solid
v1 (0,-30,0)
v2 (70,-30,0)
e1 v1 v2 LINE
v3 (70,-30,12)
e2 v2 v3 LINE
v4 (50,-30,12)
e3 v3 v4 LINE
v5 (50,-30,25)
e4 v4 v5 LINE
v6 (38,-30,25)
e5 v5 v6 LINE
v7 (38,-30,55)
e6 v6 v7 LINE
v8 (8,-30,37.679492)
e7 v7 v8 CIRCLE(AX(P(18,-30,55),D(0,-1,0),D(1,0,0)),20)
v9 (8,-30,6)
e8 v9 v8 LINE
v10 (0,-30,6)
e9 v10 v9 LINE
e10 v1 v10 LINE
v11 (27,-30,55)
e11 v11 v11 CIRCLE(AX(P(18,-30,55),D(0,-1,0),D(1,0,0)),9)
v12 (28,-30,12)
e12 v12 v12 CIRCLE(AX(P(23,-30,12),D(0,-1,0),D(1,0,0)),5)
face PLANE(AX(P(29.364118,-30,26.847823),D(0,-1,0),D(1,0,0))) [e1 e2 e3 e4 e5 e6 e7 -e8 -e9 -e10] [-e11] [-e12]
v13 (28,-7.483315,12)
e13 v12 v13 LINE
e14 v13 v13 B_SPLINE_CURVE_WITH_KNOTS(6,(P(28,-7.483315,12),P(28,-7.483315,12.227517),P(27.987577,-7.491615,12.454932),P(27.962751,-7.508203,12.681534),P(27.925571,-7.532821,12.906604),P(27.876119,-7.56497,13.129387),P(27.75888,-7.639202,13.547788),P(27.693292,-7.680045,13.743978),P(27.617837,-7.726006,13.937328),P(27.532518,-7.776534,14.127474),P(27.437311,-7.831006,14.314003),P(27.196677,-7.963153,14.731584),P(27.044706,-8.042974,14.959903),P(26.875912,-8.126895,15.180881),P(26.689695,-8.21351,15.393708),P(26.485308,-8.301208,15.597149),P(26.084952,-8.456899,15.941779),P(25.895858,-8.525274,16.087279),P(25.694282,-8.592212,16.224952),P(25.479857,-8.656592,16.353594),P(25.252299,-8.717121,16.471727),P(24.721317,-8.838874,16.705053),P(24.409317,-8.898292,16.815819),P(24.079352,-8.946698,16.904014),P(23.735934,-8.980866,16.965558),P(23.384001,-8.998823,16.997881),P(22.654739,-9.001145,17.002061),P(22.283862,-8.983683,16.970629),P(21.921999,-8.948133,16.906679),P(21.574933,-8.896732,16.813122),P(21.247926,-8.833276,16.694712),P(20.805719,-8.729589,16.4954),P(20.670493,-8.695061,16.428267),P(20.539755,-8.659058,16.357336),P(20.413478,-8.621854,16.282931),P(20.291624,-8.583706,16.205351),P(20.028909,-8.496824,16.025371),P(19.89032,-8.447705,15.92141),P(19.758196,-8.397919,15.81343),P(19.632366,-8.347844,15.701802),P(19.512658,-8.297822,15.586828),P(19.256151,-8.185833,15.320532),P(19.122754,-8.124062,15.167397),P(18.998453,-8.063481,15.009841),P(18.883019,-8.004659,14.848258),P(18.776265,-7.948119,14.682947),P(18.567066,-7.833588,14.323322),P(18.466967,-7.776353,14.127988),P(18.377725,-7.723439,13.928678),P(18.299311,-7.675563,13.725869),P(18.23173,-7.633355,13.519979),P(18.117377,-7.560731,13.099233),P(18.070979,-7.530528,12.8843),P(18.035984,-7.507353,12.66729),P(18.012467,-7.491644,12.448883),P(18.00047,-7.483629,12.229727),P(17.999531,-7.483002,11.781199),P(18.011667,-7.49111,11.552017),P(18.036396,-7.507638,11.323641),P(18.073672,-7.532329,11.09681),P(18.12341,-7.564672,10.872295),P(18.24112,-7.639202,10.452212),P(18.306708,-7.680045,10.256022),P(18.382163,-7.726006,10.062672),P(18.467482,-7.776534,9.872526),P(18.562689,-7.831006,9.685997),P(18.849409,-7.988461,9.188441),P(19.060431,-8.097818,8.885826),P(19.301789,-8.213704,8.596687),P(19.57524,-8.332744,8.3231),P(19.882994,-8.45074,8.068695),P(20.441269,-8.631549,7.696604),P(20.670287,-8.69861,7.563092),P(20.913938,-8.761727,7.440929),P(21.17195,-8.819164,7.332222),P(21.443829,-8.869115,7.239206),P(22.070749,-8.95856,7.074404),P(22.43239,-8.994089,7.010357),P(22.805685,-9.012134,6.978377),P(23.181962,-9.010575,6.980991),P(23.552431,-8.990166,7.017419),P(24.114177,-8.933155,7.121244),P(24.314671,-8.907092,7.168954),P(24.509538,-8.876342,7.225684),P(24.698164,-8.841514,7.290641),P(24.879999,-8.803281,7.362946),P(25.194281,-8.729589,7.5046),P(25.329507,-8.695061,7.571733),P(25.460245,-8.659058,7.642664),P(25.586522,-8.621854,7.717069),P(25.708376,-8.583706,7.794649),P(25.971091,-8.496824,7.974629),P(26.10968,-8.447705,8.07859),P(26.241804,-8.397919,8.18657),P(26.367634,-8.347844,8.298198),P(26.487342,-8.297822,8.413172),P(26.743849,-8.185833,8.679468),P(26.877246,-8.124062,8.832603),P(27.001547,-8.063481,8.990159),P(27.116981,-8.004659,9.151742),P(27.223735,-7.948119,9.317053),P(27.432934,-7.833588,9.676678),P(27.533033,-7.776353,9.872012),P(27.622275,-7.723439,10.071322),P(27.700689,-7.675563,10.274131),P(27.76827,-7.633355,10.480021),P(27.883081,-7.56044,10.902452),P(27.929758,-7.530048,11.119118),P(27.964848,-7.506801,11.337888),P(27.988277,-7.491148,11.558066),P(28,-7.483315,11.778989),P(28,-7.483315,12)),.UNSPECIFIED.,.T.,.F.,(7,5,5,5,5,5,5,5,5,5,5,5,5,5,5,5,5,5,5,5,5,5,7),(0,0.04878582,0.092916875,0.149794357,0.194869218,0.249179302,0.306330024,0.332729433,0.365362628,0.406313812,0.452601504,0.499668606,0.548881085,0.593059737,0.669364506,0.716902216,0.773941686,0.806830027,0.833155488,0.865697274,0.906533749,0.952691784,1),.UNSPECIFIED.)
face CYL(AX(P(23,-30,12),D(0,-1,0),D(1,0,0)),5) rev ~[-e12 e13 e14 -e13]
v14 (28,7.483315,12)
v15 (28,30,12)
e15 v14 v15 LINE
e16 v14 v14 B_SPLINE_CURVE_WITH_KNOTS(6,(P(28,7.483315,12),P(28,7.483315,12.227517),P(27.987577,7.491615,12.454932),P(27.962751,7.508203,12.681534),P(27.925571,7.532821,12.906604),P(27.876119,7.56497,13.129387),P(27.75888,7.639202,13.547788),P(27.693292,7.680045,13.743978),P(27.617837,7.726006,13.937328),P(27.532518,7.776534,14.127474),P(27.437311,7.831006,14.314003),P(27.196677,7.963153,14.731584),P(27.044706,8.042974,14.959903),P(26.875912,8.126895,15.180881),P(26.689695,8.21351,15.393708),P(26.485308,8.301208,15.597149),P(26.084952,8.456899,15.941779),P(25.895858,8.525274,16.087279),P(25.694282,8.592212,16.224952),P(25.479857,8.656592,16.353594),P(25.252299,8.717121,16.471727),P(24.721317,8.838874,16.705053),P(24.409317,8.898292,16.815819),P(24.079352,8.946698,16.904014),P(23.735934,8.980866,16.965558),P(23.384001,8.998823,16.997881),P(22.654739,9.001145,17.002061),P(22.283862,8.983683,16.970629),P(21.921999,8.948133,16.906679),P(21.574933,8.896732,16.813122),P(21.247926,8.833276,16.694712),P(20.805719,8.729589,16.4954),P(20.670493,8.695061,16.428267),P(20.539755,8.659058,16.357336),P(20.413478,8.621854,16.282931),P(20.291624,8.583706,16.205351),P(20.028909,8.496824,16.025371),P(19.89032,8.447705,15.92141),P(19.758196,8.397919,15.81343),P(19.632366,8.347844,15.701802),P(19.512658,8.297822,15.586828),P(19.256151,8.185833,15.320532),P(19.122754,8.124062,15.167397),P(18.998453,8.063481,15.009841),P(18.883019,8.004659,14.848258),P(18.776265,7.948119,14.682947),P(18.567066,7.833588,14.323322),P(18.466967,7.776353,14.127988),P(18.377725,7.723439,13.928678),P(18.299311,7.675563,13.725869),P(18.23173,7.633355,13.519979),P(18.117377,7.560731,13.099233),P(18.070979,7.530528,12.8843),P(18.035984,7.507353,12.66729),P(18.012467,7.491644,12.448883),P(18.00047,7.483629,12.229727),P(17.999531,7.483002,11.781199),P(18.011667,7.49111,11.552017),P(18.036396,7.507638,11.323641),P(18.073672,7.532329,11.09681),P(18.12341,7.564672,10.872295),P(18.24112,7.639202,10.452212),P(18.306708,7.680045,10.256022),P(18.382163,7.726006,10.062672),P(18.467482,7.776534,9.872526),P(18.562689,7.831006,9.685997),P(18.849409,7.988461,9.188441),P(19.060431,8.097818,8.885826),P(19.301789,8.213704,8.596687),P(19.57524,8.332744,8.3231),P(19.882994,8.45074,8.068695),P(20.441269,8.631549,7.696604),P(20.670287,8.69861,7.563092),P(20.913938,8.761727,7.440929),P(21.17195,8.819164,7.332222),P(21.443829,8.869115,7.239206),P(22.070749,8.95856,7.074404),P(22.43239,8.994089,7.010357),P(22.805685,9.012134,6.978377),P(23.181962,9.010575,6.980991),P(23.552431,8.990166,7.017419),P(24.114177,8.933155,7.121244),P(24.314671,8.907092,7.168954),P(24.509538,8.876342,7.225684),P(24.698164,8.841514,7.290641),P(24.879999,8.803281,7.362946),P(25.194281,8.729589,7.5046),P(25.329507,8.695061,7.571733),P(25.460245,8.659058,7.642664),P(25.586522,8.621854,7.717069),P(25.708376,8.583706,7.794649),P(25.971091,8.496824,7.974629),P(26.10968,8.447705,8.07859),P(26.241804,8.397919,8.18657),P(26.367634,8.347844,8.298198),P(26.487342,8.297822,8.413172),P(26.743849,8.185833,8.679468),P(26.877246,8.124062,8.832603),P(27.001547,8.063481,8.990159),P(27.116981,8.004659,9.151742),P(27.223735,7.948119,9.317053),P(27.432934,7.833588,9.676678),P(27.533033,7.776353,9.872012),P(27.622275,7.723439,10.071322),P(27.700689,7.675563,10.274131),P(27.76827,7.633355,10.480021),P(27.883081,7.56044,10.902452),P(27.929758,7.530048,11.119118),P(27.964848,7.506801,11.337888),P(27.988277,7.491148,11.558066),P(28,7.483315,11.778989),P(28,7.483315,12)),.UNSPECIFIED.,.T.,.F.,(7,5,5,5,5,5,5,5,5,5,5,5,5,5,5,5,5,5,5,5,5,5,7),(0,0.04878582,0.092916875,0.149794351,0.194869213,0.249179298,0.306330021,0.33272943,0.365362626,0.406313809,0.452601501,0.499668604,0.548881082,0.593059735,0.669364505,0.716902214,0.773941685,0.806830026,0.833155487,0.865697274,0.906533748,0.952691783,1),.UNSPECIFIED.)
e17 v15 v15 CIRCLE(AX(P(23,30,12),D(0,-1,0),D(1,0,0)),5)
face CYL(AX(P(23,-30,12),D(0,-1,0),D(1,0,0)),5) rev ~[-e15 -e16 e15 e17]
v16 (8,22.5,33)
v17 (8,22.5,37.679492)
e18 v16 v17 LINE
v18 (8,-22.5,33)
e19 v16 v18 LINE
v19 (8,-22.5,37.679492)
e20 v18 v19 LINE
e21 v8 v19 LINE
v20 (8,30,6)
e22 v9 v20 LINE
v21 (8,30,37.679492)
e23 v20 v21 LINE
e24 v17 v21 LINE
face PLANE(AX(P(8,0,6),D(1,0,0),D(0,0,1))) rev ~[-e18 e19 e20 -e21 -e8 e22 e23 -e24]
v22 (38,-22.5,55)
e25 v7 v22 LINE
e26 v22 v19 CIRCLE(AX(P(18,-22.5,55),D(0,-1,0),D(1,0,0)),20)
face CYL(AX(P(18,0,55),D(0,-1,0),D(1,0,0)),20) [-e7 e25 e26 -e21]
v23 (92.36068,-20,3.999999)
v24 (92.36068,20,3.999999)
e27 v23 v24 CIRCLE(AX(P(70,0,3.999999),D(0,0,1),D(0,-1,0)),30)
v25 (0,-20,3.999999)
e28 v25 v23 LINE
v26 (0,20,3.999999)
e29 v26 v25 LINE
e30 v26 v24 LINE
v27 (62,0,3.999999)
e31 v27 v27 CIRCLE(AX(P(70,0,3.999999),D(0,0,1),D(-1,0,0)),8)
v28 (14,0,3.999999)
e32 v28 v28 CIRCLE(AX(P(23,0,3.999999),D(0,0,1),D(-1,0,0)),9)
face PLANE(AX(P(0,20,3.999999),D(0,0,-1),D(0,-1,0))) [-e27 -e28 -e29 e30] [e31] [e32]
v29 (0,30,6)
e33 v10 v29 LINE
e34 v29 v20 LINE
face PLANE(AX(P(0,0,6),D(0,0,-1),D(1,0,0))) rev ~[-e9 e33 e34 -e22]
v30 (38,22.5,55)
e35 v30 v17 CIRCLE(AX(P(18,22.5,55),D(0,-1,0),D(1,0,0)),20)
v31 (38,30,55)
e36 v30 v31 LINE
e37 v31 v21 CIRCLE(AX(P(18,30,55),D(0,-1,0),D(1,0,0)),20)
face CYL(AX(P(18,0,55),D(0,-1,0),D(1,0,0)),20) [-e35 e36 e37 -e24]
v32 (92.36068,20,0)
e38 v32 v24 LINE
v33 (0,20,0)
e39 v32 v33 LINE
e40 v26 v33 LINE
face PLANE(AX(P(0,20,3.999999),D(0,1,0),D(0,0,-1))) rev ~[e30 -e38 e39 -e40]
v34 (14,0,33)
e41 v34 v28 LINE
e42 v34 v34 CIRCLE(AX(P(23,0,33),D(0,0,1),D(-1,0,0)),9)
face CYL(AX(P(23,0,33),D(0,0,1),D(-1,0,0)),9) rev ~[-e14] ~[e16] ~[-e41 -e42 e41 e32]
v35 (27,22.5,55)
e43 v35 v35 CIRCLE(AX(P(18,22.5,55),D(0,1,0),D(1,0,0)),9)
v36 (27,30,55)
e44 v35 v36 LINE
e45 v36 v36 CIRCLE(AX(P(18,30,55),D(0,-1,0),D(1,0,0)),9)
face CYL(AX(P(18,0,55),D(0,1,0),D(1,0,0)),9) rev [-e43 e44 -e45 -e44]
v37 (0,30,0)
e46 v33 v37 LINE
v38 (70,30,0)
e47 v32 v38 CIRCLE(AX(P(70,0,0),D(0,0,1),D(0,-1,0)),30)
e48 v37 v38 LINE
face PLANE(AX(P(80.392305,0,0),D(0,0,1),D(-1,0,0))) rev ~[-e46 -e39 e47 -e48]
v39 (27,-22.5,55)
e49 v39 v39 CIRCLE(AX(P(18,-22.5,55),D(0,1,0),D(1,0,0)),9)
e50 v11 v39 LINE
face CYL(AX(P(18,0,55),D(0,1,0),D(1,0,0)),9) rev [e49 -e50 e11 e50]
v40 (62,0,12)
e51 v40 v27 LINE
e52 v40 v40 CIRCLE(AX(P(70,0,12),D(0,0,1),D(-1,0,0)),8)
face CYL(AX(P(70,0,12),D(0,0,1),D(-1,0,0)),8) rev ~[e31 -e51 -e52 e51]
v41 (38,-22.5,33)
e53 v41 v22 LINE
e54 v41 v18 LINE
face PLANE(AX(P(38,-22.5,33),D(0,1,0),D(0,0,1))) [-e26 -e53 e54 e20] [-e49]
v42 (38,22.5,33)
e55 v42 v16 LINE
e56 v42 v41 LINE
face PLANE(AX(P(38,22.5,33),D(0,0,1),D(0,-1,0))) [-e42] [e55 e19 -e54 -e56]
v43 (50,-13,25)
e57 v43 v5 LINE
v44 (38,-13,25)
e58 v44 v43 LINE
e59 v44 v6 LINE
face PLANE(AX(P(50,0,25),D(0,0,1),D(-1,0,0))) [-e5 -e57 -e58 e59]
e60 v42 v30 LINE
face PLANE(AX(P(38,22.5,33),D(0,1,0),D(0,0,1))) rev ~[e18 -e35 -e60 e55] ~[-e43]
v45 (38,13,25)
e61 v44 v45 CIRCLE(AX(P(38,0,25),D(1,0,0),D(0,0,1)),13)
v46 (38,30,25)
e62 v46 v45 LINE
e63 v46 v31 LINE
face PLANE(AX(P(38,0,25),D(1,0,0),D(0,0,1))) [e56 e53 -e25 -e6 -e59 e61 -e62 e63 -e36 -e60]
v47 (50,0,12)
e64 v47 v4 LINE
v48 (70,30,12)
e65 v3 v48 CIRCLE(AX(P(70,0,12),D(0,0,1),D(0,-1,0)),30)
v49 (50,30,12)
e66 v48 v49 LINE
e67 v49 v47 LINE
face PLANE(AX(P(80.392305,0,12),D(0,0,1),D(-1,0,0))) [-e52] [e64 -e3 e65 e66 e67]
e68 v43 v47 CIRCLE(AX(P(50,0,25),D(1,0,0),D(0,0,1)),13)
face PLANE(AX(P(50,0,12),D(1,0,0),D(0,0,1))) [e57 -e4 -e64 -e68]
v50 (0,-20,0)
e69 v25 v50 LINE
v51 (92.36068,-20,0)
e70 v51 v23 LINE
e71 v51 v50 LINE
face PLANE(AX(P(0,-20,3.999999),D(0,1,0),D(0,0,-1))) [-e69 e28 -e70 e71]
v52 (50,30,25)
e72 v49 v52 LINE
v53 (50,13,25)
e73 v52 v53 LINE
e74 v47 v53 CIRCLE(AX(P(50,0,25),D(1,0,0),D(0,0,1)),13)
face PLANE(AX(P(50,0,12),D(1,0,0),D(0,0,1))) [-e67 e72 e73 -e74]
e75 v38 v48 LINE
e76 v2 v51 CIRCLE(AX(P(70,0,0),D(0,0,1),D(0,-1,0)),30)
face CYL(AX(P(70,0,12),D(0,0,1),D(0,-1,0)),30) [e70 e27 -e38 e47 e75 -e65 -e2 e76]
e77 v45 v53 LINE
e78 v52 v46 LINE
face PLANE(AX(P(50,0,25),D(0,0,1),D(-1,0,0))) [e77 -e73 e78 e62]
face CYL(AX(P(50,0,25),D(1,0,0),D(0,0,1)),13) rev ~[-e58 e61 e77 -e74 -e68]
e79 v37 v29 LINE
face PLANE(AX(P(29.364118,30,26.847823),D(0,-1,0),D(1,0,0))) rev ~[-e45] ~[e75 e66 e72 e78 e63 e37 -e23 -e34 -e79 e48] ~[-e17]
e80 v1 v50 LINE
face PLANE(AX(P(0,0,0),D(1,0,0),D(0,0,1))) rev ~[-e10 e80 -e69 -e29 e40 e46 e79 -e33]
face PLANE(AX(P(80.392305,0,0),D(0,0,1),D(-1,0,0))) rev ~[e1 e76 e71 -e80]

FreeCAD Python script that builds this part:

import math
import FreeCAD as App
import Part
import Sketcher

doc = App.newDocument("Part")
params = doc.addObject("Spreadsheet::Sheet", "Params")
for row, (alias, value) in enumerate([
    ("sketch1_diameter", "18 mm"),
    ("sketch1_radius", "20 mm"),
    ("sketch1_width", "70 mm"),
    ("sketch1_width2", "20 mm"),
    ("sketch1_width3", "12 mm"),
    ("pad1_length", "60 mm"),
    ("sketch2_width", "45 mm"),
    ("sketch3_diameter", "10 mm"),
    ("sketch4_diameter", "18 mm"),
    ("sketch5_radius", "30 mm"),
    ("pad2_length", "12 mm"),
    ("sketch6_width", "40 mm"),
    ("sketch7_diameter", "26 mm"),
    ("pocket5_length", "12 mm"),
    ("sketch8_diameter", "16 mm"),
], start=1):
    params.set(f"A{row}", alias)
    params.set(f"B{row}", "=" + value)
    params.setAlias(f"B{row}", alias)

body = doc.addObject("PartDesign::Body", "Body")

sketch1 = body.newObject("Sketcher::SketchObject", "Sketch")
sketch1.AttachmentSupport = (doc.getObject("XZ_Plane"), [""])
sketch1.MapMode = "FlatFace"
sketch1.addGeometry([
    Part.LineSegment(App.Vector(0, 0, 0), App.Vector(70, 0, 0)),
    Part.LineSegment(App.Vector(70, 0, 0), App.Vector(70, 12, 0)),
    Part.LineSegment(App.Vector(70, 12, 0), App.Vector(50, 12, 0)),
    Part.LineSegment(App.Vector(50, 12, 0), App.Vector(50, 25, 0)),
    Part.LineSegment(App.Vector(50, 25, 0), App.Vector(38, 25, 0)),
    Part.LineSegment(App.Vector(38, 25, 0), App.Vector(38, 55, 0)),
    Part.ArcOfCircle(Part.Circle(App.Vector(18, 55, 0), App.Vector(0, 0, 1), 20), math.radians(0), math.radians(240)),
    Part.LineSegment(App.Vector(8, 37.679492, 0), App.Vector(8, 6, 0)),
    Part.LineSegment(App.Vector(8, 6, 0), App.Vector(0, 6, 0)),
    Part.LineSegment(App.Vector(0, 6, 0), App.Vector(0, 0, 0)),
    Part.Circle(App.Vector(18, 55, 0), App.Vector(0, 0, 1), 9),
], False)
sketch1.addConstraint([
    Sketcher.Constraint("Coincident", 0, 2, 1, 1),
    Sketcher.Constraint("Coincident", 1, 2, 2, 1),
    Sketcher.Constraint("Coincident", 2, 2, 3, 1),
    Sketcher.Constraint("Coincident", 3, 2, 4, 1),
    Sketcher.Constraint("Coincident", 4, 2, 5, 1),
    Sketcher.Constraint("Tangent", 5, 2, 6, 1),
    Sketcher.Constraint("Coincident", 6, 2, 7, 1),
    Sketcher.Constraint("Coincident", 7, 2, 8, 1),
    Sketcher.Constraint("Coincident", 8, 2, 9, 1),
    Sketcher.Constraint("Coincident", 9, 2, 0, 1),
    Sketcher.Constraint("Horizontal", 0),
    Sketcher.Constraint("Vertical", 1),
    Sketcher.Constraint("Horizontal", 2),
    Sketcher.Constraint("Vertical", 3),
    Sketcher.Constraint("Horizontal", 4),
    Sketcher.Constraint("Vertical", 5),
    Sketcher.Constraint("Vertical", 7),
    Sketcher.Constraint("Horizontal", 8),
    Sketcher.Constraint("Vertical", 9),
    Sketcher.Constraint("Coincident", 9, 2, -1, 1),
    Sketcher.Constraint("Coincident", 10, 3, 6, 3),
    Sketcher.Constraint("Equal", 4, 1),
    Sketcher.Constraint("Diameter", 10, 18.0),
    Sketcher.Constraint("Radius", 6, 20.0),
    Sketcher.Constraint("DistanceX", 0, 1, 0, 2, 70.0),
    Sketcher.Constraint("DistanceX", 2, 2, 2, 1, 20.0),
    Sketcher.Constraint("DistanceX", 4, 2, 4, 1, 12.0),
    Sketcher.Constraint("DistanceX", 8, 2, 8, 1, 8.0),
    Sketcher.Constraint("DistanceY", 3, 1, 3, 2, 13.0),
    Sketcher.Constraint("DistanceY", 5, 1, 5, 2, 30.0),
    Sketcher.Constraint("DistanceY", 9, 2, 9, 1, 6.0),
])
sketch1.setExpression("Constraints[22]", "Params.sketch1_diameter")
sketch1.setExpression("Constraints[23]", "Params.sketch1_radius")
sketch1.setExpression("Constraints[24]", "Params.sketch1_width")
sketch1.setExpression("Constraints[25]", "Params.sketch1_width2")
sketch1.setExpression("Constraints[26]", "Params.sketch1_width3")
pad1 = body.newObject("PartDesign::Pad", "Pad")
pad1.Profile = sketch1
pad1.setExpression("Length", "Params.pad1_length")
pad1.Midplane = True

sketch2 = body.newObject("Sketcher::SketchObject", "Sketch001")
sketch2.AttachmentSupport = (doc.getObject("YZ_Plane"), [""])
sketch2.MapMode = "FlatFace"
sketch2.AttachmentOffset = App.Placement(App.Vector(0, 0, 38), App.Rotation())
sketch2.addGeometry([
    Part.LineSegment(App.Vector(-22.5, 33, 0), App.Vector(22.5, 33, 0)),
    Part.LineSegment(App.Vector(22.5, 33, 0), App.Vector(22.5, 88.131706, 0)),
    Part.LineSegment(App.Vector(22.5, 88.131706, 0), App.Vector(-22.5, 88.131706, 0)),
    Part.LineSegment(App.Vector(-22.5, 88.131706, 0), App.Vector(-22.5, 33, 0)),
], False)
sketch2.addConstraint([
    Sketcher.Constraint("Coincident", 0, 2, 1, 1),
    Sketcher.Constraint("Coincident", 1, 2, 2, 1),
    Sketcher.Constraint("Coincident", 2, 2, 3, 1),
    Sketcher.Constraint("Coincident", 3, 2, 0, 1),
    Sketcher.Constraint("Horizontal", 0),
    Sketcher.Constraint("Vertical", 1),
    Sketcher.Constraint("Horizontal", 2),
    Sketcher.Constraint("Vertical", 3),
    Sketcher.Constraint("DistanceX", 0, 1, 0, 2, 45.0),
    Sketcher.Constraint("DistanceY", -1, 1, 0, 2, 33.0),
    Sketcher.Constraint("DistanceX", -1, 1, 0, 2, 22.5),
    Sketcher.Constraint("DistanceY", 1, 1, 1, 2, 55.131706),
])
sketch2.setExpression("Constraints[8]", "Params.sketch2_width")
pocket1 = body.newObject("PartDesign::Pocket", "Pocket")
pocket1.Profile = sketch2
pocket1.Type = "ThroughAll"

sketch3 = body.newObject("Sketcher::SketchObject", "Sketch002")
sketch3.AttachmentSupport = (doc.getObject("XZ_Plane"), [""])
sketch3.MapMode = "FlatFace"
sketch3.AttachmentOffset = App.Placement(App.Vector(0, 0, 30), App.Rotation())
sketch3.addGeometry(Part.Circle(App.Vector(23, 12, 0), App.Vector(0, 0, 1), 5), False)
sketch3.addConstraint([
    Sketcher.Constraint("Diameter", 0, 10.0),
    Sketcher.Constraint("DistanceX", -1, 1, 0, 3, 23.0),
    Sketcher.Constraint("DistanceY", -1, 1, 0, 3, 12.0),
])
sketch3.setExpression("Constraints[0]", "Params.sketch3_diameter")
pocket2 = body.newObject("PartDesign::Pocket", "Pocket001")
pocket2.Profile = sketch3
pocket2.Type = "ThroughAll"

sketch4 = body.newObject("Sketcher::SketchObject", "Sketch003")
sketch4.AttachmentSupport = (doc.getObject("XY_Plane"), [""])
sketch4.MapMode = "FlatFace"
sketch4.AttachmentOffset = App.Placement(App.Vector(0, 0, 33), App.Rotation())
sketch4.addGeometry(Part.Circle(App.Vector(23, 0, 0), App.Vector(0, 0, 1), 9), False)
sketch4.addConstraint([
    Sketcher.Constraint("PointOnObject", 0, 3, -1),
    Sketcher.Constraint("Diameter", 0, 18.0),
    Sketcher.Constraint("DistanceX", -1, 1, 0, 3, 23.0),
])
sketch4.setExpression("Constraints[1]", "Params.sketch4_diameter")
pocket3 = body.newObject("PartDesign::Pocket", "Pocket002")
pocket3.Profile = sketch4
pocket3.Type = "ThroughAll"

sketch5 = body.newObject("Sketcher::SketchObject", "Sketch004")
sketch5.AttachmentSupport = (doc.getObject("XY_Plane"), [""])
sketch5.MapMode = "FlatFace"
sketch5.AttachmentOffset = App.Placement(App.Vector(0, 0, 12), App.Rotation())
sketch5.addGeometry([
    Part.ArcOfCircle(Part.Circle(App.Vector(70, 0, 0), App.Vector(0, 0, 1), 30), math.radians(-90), math.radians(90)),
    Part.LineSegment(App.Vector(70, 30, 0), App.Vector(70, -30, 0)),
], False)
sketch5.addConstraint([
    Sketcher.Constraint("Coincident", 0, 1, 1, 2),
    Sketcher.Constraint("Coincident", 1, 1, 0, 2),
    Sketcher.Constraint("Vertical", 1),
    Sketcher.Constraint("PointOnObject", 0, 3, -1),
    Sketcher.Constraint("Radius", 0, 30.0),
    Sketcher.Constraint("DistanceX", -1, 1, 0, 3, 70.0),
    Sketcher.Constraint("DistanceX", -1, 1, 0, 1, 70.0),
])
sketch5.setExpression("Constraints[4]", "Params.sketch5_radius")
pad2 = body.newObject("PartDesign::Pad", "Pad001")
pad2.Profile = sketch5
pad2.setExpression("Length", "Params.pad2_length")
pad2.Reversed = True

sketch6 = body.newObject("Sketcher::SketchObject", "Sketch005")
sketch6.AttachmentSupport = (doc.getObject("YZ_Plane"), [""])
sketch6.MapMode = "FlatFace"
sketch6.addGeometry([
    Part.LineSegment(App.Vector(-20, 3.999999, 0), App.Vector(20, 3.999999, 0)),
    Part.LineSegment(App.Vector(20, 3.999999, 0), App.Vector(20, -5.754251, 0)),
    Part.LineSegment(App.Vector(20, -5.754251, 0), App.Vector(-20, -5.754251, 0)),
    Part.LineSegment(App.Vector(-20, -5.754251, 0), App.Vector(-20, 3.999999, 0)),
], False)
sketch6.addConstraint([
    Sketcher.Constraint("Coincident", 0, 2, 1, 1),
    Sketcher.Constraint("Coincident", 1, 2, 2, 1),
    Sketcher.Constraint("Coincident", 2, 2, 3, 1),
    Sketcher.Constraint("Coincident", 3, 2, 0, 1),
    Sketcher.Constraint("Horizontal", 0),
    Sketcher.Constraint("Vertical", 1),
    Sketcher.Constraint("Horizontal", 2),
    Sketcher.Constraint("Vertical", 3),
    Sketcher.Constraint("DistanceX", 0, 1, 0, 2, 40.0),
    Sketcher.Constraint("DistanceX", -1, 1, 0, 2, 20.0),
    Sketcher.Constraint("DistanceY", -1, 1, 0, 2, 3.999999),
    Sketcher.Constraint("DistanceY", 1, 2, 1, 1, 9.754251),
])
sketch6.setExpression("Constraints[8]", "Params.sketch6_width")
pocket4 = body.newObject("PartDesign::Pocket", "Pocket003")
pocket4.Profile = sketch6
pocket4.Type = "ThroughAll"
pocket4.Reversed = True

sketch7 = body.newObject("Sketcher::SketchObject", "Sketch006")
sketch7.AttachmentSupport = (doc.getObject("YZ_Plane"), [""])
sketch7.MapMode = "FlatFace"
sketch7.AttachmentOffset = App.Placement(App.Vector(0, 0, 50), App.Rotation())
sketch7.addGeometry(Part.Circle(App.Vector(0, 25, 0), App.Vector(0, 0, 1), 13), False)
sketch7.addConstraint([
    Sketcher.Constraint("PointOnObject", 0, 3, -2),
    Sketcher.Constraint("Diameter", 0, 26.0),
    Sketcher.Constraint("DistanceY", -1, 1, 0, 3, 25.0),
])
sketch7.setExpression("Constraints[1]", "Params.sketch7_diameter")
pocket5 = body.newObject("PartDesign::Pocket", "Pocket004")
pocket5.Profile = sketch7
pocket5.setExpression("Length", "Params.pocket5_length")

sketch8 = body.newObject("Sketcher::SketchObject", "Sketch007")
sketch8.AttachmentSupport = (doc.getObject("XY_Plane"), [""])
sketch8.MapMode = "FlatFace"
sketch8.AttachmentOffset = App.Placement(App.Vector(0, 0, 12), App.Rotation())
sketch8.addGeometry(Part.Circle(App.Vector(70, 0, 0), App.Vector(0, 0, 1), 8), False)
sketch8.addConstraint([
    Sketcher.Constraint("PointOnObject", 0, 3, -1),
    Sketcher.Constraint("Diameter", 0, 16.0),
    Sketcher.Constraint("DistanceX", -1, 1, 0, 3, 70.0),
])
sketch8.setExpression("Constraints[1]", "Params.sketch8_diameter")
pocket6 = body.newObject("PartDesign::Pocket", "Pocket005")
pocket6.Profile = sketch8
pocket6.Type = "ThroughAll"

doc.recompute()
